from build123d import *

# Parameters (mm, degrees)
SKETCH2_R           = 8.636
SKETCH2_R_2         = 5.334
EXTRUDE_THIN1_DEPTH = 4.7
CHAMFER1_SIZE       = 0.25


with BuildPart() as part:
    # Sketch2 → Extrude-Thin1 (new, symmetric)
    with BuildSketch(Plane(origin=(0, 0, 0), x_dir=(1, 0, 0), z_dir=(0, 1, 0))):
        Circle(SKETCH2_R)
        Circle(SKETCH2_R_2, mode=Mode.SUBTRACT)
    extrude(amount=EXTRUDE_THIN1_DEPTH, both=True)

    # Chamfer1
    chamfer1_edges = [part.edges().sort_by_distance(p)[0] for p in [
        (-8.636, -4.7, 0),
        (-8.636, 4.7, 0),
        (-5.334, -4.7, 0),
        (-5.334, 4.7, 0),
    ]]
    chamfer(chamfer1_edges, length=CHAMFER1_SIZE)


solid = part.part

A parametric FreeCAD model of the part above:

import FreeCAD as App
import Part
import Sketcher
from FreeCAD import Vector
Q = App.Units.Quantity


def edges_at(feature, points):
    """Names of the edges that pass closest to the given points."""
    edges = feature.Shape.Edges
    near = lambda p: min(range(len(edges)), key=lambda i: edges[i].distToShape(Part.Vertex(*p))[0])
    return sorted({f"Edge{near(p) + 1}" for p in points})

doc = App.newDocument("Part")
params = doc.addObject("Spreadsheet::Sheet", "Params")
for row, (alias, value) in enumerate([
    ("sketch1_diameter", "0.68 in"),
    ("sketch1_diameter2", "0.42 in"),
    ("pad1_length", "9.4 mm"),
    ("chamfer_size", "0.25 mm"),
], start=1):
    params.set(f"A{row}", alias)
    params.set(f"B{row}", "=" + value)
    params.setAlias(f"B{row}", alias)

body = doc.addObject("PartDesign::Body", "Body")

# Sketch on XZ plane
sketch1 = body.newObject("Sketcher::SketchObject", "Sketch")
sketch1.AttachmentSupport = (doc.getObject("XZ_Plane"), [""])
sketch1.MapMode = "FlatFace"
sketch1.addGeometry(Part.Circle(Vector(0, 0, 0), Vector(0, 0, 1), 9), False)
sketch1.addGeometry(Part.Circle(Vector(0, 0, 0), Vector(0, 0, 1), 5), False)
sketch1.addConstraint(Sketcher.Constraint("Coincident", 0, 3, -1, 1))
sketch1.addConstraint(Sketcher.Constraint("Coincident", 1, 3, -1, 1))
sketch1.addConstraint(Sketcher.Constraint("Diameter", 0, Q("0.68 in")))
sketch1.addConstraint(Sketcher.Constraint("Diameter", 1, Q("0.42 in")))
sketch1.setExpression("Constraints[2]", "Params.sketch1_diameter")
sketch1.setExpression("Constraints[3]", "Params.sketch1_diameter2")
pad1 = body.newObject("PartDesign::Pad", "Pad")
pad1.Profile = sketch1
pad1.setExpression("Length", "Params.pad1_length")
pad1.Midplane = True
doc.recompute()

chamfer = body.newObject("PartDesign::Chamfer", "Chamfer")
chamfer.Base = (pad1, edges_at(pad1, [
    (-8.636, -4.7, 0),
    (-8.636, 4.7, 0),
    (-5.334, -4.7, 0),
    (-5.334, 4.7, 0),
]))
chamfer.setExpression("Size", "Params.chamfer_size")

doc.recompute()
